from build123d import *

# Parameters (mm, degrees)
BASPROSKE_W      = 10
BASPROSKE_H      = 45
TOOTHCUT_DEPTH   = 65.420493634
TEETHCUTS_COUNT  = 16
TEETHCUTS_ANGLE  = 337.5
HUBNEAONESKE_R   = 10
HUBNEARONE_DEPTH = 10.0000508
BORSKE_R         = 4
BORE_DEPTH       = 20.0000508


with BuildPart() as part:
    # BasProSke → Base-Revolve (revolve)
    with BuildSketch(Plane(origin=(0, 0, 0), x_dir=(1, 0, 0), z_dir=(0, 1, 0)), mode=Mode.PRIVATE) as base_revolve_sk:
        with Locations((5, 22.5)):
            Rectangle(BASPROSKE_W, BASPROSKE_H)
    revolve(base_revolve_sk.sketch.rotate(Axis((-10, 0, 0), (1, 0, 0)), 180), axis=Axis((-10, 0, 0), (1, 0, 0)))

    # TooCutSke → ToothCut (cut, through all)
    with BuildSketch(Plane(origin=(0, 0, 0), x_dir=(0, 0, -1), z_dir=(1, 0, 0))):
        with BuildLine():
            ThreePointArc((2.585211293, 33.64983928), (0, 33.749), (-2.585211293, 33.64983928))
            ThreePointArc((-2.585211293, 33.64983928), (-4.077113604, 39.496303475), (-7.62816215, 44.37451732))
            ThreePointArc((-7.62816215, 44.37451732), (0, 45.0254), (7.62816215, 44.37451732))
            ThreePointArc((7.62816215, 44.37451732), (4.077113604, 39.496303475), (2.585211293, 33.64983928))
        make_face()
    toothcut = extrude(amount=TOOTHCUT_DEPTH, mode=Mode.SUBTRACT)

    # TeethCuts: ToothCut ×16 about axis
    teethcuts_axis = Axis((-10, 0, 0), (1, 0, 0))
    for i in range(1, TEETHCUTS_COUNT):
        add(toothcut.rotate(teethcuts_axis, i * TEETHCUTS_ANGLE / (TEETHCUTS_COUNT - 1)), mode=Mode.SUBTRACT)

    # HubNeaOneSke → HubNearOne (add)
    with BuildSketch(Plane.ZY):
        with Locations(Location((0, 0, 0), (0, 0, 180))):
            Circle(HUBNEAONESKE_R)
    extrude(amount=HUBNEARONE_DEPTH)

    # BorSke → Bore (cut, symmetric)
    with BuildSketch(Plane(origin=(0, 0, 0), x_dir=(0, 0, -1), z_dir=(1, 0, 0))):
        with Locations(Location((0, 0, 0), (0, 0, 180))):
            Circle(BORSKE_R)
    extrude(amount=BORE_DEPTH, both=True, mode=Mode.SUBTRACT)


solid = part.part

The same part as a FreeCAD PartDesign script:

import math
import FreeCAD as App
import Part
import Sketcher
Q = App.Units.Quantity

doc = App.newDocument("Part")
body = doc.addObject("PartDesign::Body", "Body")

# Sketch on XZ plane
sketch1 = body.newObject("Sketcher::SketchObject", "Sketch")
sketch1.AttachmentSupport = (doc.getObject("XZ_Plane"), [""])
sketch1.MapMode = "FlatFace"
sketch1.addGeometry([
    Part.LineSegment(App.Vector(0, -45, 0), App.Vector(0, 0, 0)),
    Part.LineSegment(App.Vector(0, 0, 0), App.Vector(10, 0, 0)),
    Part.LineSegment(App.Vector(10, 0, 0), App.Vector(10, -45, 0)),
    Part.LineSegment(App.Vector(10, -45, 0), App.Vector(0, -45, 0)),
], False)
sketch1.addConstraint([
    Sketcher.Constraint("Coincident", 0, 2, 1, 1),
    Sketcher.Constraint("Coincident", 1, 2, 2, 1),
    Sketcher.Constraint("Coincident", 2, 2, 3, 1),
    Sketcher.Constraint("Coincident", 3, 2, 0, 1),
    Sketcher.Constraint("Vertical", 0),
    Sketcher.Constraint("Horizontal", 1),
    Sketcher.Constraint("Vertical", 2),
    Sketcher.Constraint("Horizontal", 3),
    Sketcher.Constraint("Coincident", 0, 2, -1, 1),
    Sketcher.Constraint("DistanceX", 1, 1, 1, 2, Q("10 mm")),
    Sketcher.Constraint("DistanceY", 0, 1, 0, 2, Q("45 mm")),
])
revolution = body.newObject("PartDesign::Revolution", "Revolution")
revolution.Profile = sketch1
revolution.ReferenceAxis = (sketch1, ["H_Axis"])
revolution.Angle = 360

# Sketch on YZ plane
sketch2 = body.newObject("Sketcher::SketchObject", "Sketch001")
sketch2.AttachmentSupport = (doc.getObject("YZ_Plane"), [""])
sketch2.MapMode = "FlatFace"
sketch2.addGeometry([
    Part.ArcOfCircle(Part.Circle(App.Vector(0, 0, 0), App.Vector(0, 0, 1), 33.749), math.radians(-4.393225), math.radians(4.393225)),
    Part.ArcOfCircle(Part.Circle(App.Vector(32.687924, -18.55627, 0), App.Vector(0, 0, 1), 16), math.radians(43.07905), math.radians(86.553317)),
    Part.ArcOfCircle(Part.Circle(App.Vector(0, 0, 0), App.Vector(0, 0, 1), 45.0254), math.radians(-9.754045), math.radians(9.754045)),
    Part.ArcOfCircle(Part.Circle(App.Vector(32.687924, 18.55627, 0), App.Vector(0, 0, 1), 16), math.radians(-86.553317), math.radians(-43.07905)),
], False)
sketch2.addConstraint([
    Sketcher.Constraint("Coincident", 0, 1, 1, 2),
    Sketcher.Constraint("Coincident", 1, 1, 2, 1),
    Sketcher.Constraint("Coincident", 2, 2, 3, 2),
    Sketcher.Constraint("Coincident", 3, 1, 0, 2),
    Sketcher.Constraint("Coincident", 0, 3, -1, 1),
    Sketcher.Constraint("Coincident", 2, 3, -1, 1),
    Sketcher.Constraint("Equal", 1, 3),
    Sketcher.Constraint("Symmetric", 1, 3, 3, 3, -1),
    Sketcher.Constraint("Radius", 1, Q("16 mm")),
    Sketcher.Constraint("Radius", 0, Q("33.749 mm")),
    Sketcher.Constraint("Radius", 2, Q("45.0254 mm")),
    Sketcher.Constraint("DistanceY", 1, 3, -1, 1, Q("18.55627 mm")),
    Sketcher.Constraint("DistanceY", -1, 1, 3, 1, Q("2.585211 mm")),
])
pocket1 = body.newObject("PartDesign::Pocket", "Pocket")
pocket1.Profile = sketch2
pocket1.Type = "ThroughAll"
pocket1.Reversed = True
doc.recompute()

polarpattern = body.newObject("PartDesign::PolarPattern", "PolarPattern")
polarpattern.Originals = [pocket1]
polarpattern.Axis = (doc.getObject("X_Axis"), [""])
polarpattern.Angle = 360
polarpattern.Occurrences = 16
body.Tip = polarpattern

# Sketch on YZ plane
sketch3 = body.newObject("Sketcher::SketchObject", "Sketch002")
sketch3.AttachmentSupport = (doc.getObject("YZ_Plane"), [""])
sketch3.MapMode = "FlatFace"
sketch3.addGeometry(Part.Circle(App.Vector(0, 0, 0), App.Vector(0, 0, 1), 10), False)
sketch3.addConstraint([
    Sketcher.Constraint("Coincident", 0, 3, -1, 1),
    Sketcher.Constraint("Diameter", 0, Q("20 mm")),
])
pad1 = body.newObject("PartDesign::Pad", "Pad")
pad1.Profile = sketch3
pad1.Length = 10.000051
pad1.Reversed = True

# Sketch on YZ plane
sketch4 = body.newObject("Sketcher::SketchObject", "Sketch003")
sketch4.AttachmentSupport = (doc.getObject("YZ_Plane"), [""])
sketch4.MapMode = "FlatFace"
sketch4.addGeometry(Part.Circle(App.Vector(0, 0, 0), App.Vector(0, 0, 1), 4), False)
sketch4.addConstraint([
    Sketcher.Constraint("Coincident", 0, 3, -1, 1),
    Sketcher.Constraint("Diameter", 0, Q("8 mm")),
])
pocket2 = body.newObject("PartDesign::Pocket", "Pocket001")
pocket2.Profile = sketch4
pocket2.Length = 40.000102
pocket2.Midplane = True

doc.recompute()
